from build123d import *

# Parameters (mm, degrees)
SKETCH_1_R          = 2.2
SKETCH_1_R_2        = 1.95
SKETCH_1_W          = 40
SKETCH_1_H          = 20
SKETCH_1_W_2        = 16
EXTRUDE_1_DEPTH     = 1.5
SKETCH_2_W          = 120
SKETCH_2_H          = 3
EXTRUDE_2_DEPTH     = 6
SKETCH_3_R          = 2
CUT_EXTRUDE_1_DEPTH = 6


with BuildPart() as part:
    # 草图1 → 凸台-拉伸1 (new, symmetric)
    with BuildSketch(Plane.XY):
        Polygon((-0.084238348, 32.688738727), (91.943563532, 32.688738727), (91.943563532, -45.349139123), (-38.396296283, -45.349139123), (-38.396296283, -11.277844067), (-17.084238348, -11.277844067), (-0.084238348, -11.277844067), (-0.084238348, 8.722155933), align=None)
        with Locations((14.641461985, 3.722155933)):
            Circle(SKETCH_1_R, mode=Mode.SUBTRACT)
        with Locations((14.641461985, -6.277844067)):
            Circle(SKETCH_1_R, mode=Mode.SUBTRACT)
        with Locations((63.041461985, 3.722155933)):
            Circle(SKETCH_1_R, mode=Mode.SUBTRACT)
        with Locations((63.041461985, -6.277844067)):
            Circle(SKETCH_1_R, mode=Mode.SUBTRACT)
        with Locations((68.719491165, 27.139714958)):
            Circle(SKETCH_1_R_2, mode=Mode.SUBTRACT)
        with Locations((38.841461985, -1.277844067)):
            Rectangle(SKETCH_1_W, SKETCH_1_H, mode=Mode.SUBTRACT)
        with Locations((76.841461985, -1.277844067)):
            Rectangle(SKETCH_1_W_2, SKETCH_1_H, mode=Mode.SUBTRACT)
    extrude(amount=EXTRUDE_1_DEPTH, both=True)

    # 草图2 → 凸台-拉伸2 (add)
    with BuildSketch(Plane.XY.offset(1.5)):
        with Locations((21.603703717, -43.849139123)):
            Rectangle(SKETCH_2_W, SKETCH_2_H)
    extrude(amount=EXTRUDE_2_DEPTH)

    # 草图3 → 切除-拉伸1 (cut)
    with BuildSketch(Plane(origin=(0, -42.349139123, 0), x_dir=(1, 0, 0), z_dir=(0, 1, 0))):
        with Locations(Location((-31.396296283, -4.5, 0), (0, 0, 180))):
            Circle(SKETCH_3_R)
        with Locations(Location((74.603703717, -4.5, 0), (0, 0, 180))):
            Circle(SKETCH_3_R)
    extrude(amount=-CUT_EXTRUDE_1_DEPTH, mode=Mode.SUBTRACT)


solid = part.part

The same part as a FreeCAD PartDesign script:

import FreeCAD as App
import Part
import Sketcher

V = App.Vector
Q = App.Units.Quantity

doc = App.newDocument("Part")
params = doc.addObject("Spreadsheet::Sheet", "Params")
for row, (alias, value) in enumerate([
    ("sketch1_diameter", "4.4 mm"),
    ("sketch1_diameter2", "3.9 mm"),
    ("sketch1_width", "16 mm"),
    ("sketch1_width2", "40 mm"),
    ("sketch1_height", "20 mm"),
    ("pad1_length", "3 mm"),
    ("sketch2_width", "120 mm"),
    ("sketch2_height", "3 mm"),
    ("pad2_length", "6 mm"),
    ("sketch3_diameter", "4 mm"),
    ("pocket1_length", "6 mm"),
], start=1):
    params.set(f"A{row}", alias)
    params.set(f"B{row}", "=" + value)
    params.setAlias(f"B{row}", alias)

body = doc.addObject("PartDesign::Body", "Body")

# Sketch on XY plane
sketch1 = doc.addObject("Sketcher::SketchObject", "Sketch")
body.addObject(sketch1)
sketch1.AttachmentSupport = (doc.XY_Plane, [""])
sketch1.MapMode = "FlatFace"
sketch1.addGeometry([
    Part.LineSegment(V(91.9, 32.7, 0), V(-0.1, 32.7, 0)),  # 0
    Part.LineSegment(V(-0.1, 32.7, 0), V(-0.1, -11.3, 0)),  # 1
    Part.LineSegment(V(-0.1, -11.3, 0), V(-38.4, -11.3, 0)),  # 2
    Part.LineSegment(V(-38.4, -11.3, 0), V(-38.4, -45.3, 0)),  # 3
    Part.LineSegment(V(-38.4, -45.3, 0), V(91.9, -45.3, 0)),  # 4
    Part.LineSegment(V(91.9, -45.3, 0), V(91.9, 32.7, 0)),  # 5
    Part.LineSegment(V(68.8, -11.3, 0), V(68.8, 8.7, 0)),  # 6
    Part.LineSegment(V(68.8, 8.7, 0), V(84.8, 8.7, 0)),  # 7
    Part.LineSegment(V(84.8, 8.7, 0), V(84.8, -11.3, 0)),  # 8
    Part.LineSegment(V(84.8, -11.3, 0), V(68.8, -11.3, 0)),  # 9
    Part.Circle(V(63, -6.3, 0), V(0, 0, 1), 2.2),  # 10
    Part.Circle(V(63, 3.7, 0), V(0, 0, 1), 2.2),  # 11
    Part.LineSegment(V(18.8, -11.3, 0), V(18.8, 8.7, 0)),  # 12
    Part.LineSegment(V(18.8, 8.7, 0), V(58.8, 8.7, 0)),  # 13
    Part.LineSegment(V(58.8, 8.7, 0), V(58.8, -11.3, 0)),  # 14
    Part.LineSegment(V(58.8, -11.3, 0), V(18.8, -11.3, 0)),  # 15
    Part.Circle(V(14.6, -6.3, 0), V(0, 0, 1), 2.2),  # 16
    Part.Circle(V(14.6, 3.7, 0), V(0, 0, 1), 2.2),  # 17
    Part.Circle(V(68.7, 27.1, 0), V(0, 0, 1), 1.9),  # 18
], False)
sketch1.addConstraint([
    Sketcher.Constraint("Coincident", 0, 2, 1, 1),
    Sketcher.Constraint("Coincident", 1, 2, 2, 1),
    Sketcher.Constraint("Coincident", 2, 2, 3, 1),
    Sketcher.Constraint("Coincident", 3, 2, 4, 1),
    Sketcher.Constraint("Coincident", 4, 2, 5, 1),
    Sketcher.Constraint("Coincident", 5, 2, 0, 1),
    Sketcher.Constraint("Coincident", 6, 2, 7, 1),
    Sketcher.Constraint("Coincident", 7, 2, 8, 1),
    Sketcher.Constraint("Coincident", 8, 2, 9, 1),
    Sketcher.Constraint("Coincident", 9, 2, 6, 1),
    Sketcher.Constraint("Coincident", 12, 2, 13, 1),
    Sketcher.Constraint("Coincident", 13, 2, 14, 1),
    Sketcher.Constraint("Coincident", 14, 2, 15, 1),
    Sketcher.Constraint("Coincident", 15, 2, 12, 1),
    Sketcher.Constraint("Horizontal", 0),
    Sketcher.Constraint("Vertical", 1),
    Sketcher.Constraint("Horizontal", 2),
    Sketcher.Constraint("Vertical", 3),
    Sketcher.Constraint("Horizontal", 4),
    Sketcher.Constraint("Vertical", 5),
    Sketcher.Constraint("Vertical", 6),
    Sketcher.Constraint("Horizontal", 7),
    Sketcher.Constraint("Vertical", 8),
    Sketcher.Constraint("Horizontal", 9),
    Sketcher.Constraint("Vertical", 12),
    Sketcher.Constraint("Horizontal", 13),
    Sketcher.Constraint("Vertical", 14),
    Sketcher.Constraint("Horizontal", 15),
    Sketcher.Constraint("Equal", 10, 11),
    Sketcher.Constraint("Equal", 11, 16),
    Sketcher.Constraint("Equal", 16, 17),
    Sketcher.Constraint("Horizontal", 10, 3, 16, 3),
    Sketcher.Constraint("Horizontal", 11, 3, 17, 3),
    Sketcher.Constraint("Horizontal", 2, 2, 8, 2),
    Sketcher.Constraint("Horizontal", 7, 2, 12, 2),
    Sketcher.Constraint("Horizontal", 9, 2, 14, 2),
    Sketcher.Constraint("Vertical", 10, 3, 11, 3),
    Sketcher.Constraint("Vertical", 16, 3, 17, 3),
    Sketcher.Constraint("Diameter", 10, Q("4.4 mm")),
    Sketcher.Constraint("Diameter", 18, Q("3.9 mm")),
    Sketcher.Constraint("DistanceX", 7, 1, 7, 2, Q("16 mm")),
    Sketcher.Constraint("DistanceX", 13, 1, 13, 2, Q("40 mm")),
    Sketcher.Constraint("DistanceY", 6, 1, 6, 2, Q("20 mm")),
    Sketcher.Constraint("DistanceY", 10, 3, 11, 3, Q("10 mm")),
    Sketcher.Constraint("DistanceY", 1, 2, 16, 3, Q("5 mm")),
    Sketcher.Constraint("DistanceX", 13, 2, 6, 2, Q("10 mm")),
    Sketcher.Constraint("DistanceX", 16, 3, 10, 3, Q("48.4 mm")),
    Sketcher.Constraint("DistanceX", 11, 3, 6, 2, Q("5.8 mm")),
    Sketcher.Constraint("DistanceX", 0, 2, 0, 1, Q("92.027802 mm")),
    Sketcher.Constraint("DistanceX", 4, 1, 4, 2, Q("130.33986 mm")),
    Sketcher.Constraint("DistanceX", 0, 2, 17, 3, Q("14.7257 mm")),
    Sketcher.Constraint("DistanceY", 1, 2, 1, 1, Q("43.966583 mm")),
    Sketcher.Constraint("DistanceY", 3, 2, 3, 1, Q("34.071295 mm")),
    Sketcher.Constraint("DistanceX", -1, 1, 10, 3, Q("63.041462 mm")),
    Sketcher.Constraint("DistanceX", -1, 1, 18, 3, Q("68.719491 mm")),
    Sketcher.Constraint("DistanceY", -1, 1, 0, 2, Q("32.688739 mm")),
    Sketcher.Constraint("DistanceY", 11, 3, 18, 3, Q("23.417559 mm")),
])
sketch1.setExpression("Constraints[38]", "Params.sketch1_diameter")
sketch1.setExpression("Constraints[39]", "Params.sketch1_diameter2")
sketch1.setExpression("Constraints[40]", "Params.sketch1_width")
sketch1.setExpression("Constraints[41]", "Params.sketch1_width2")
sketch1.setExpression("Constraints[42]", "Params.sketch1_height")
pad1 = doc.addObject("PartDesign::Pad", "Pad")
body.addObject(pad1)
pad1.Profile = sketch1
pad1.setExpression("Length", "Params.pad1_length")
pad1.Midplane = True

# Sketch on XY plane
sketch2 = doc.addObject("Sketcher::SketchObject", "Sketch001")
body.addObject(sketch2)
sketch2.AttachmentSupport = (doc.XY_Plane, [""])
sketch2.MapMode = "FlatFace"
sketch2.AttachmentOffset = App.Placement(V(0, 0, 1.5), App.Rotation())
sketch2.addGeometry([
    Part.LineSegment(V(-38.4, -42.3, 0), V(-38.4, -45.3, 0)),
    Part.LineSegment(V(-38.4, -45.3, 0), V(81.6, -45.3, 0)),
    Part.LineSegment(V(81.6, -45.3, 0), V(81.6, -42.3, 0)),
    Part.LineSegment(V(81.6, -42.3, 0), V(-38.4, -42.3, 0)),
], False)
sketch2.addConstraint([
    Sketcher.Constraint("Coincident", 0, 2, 1, 1),
    Sketcher.Constraint("Coincident", 1, 2, 2, 1),
    Sketcher.Constraint("Coincident", 2, 2, 3, 1),
    Sketcher.Constraint("Coincident", 3, 2, 0, 1),
    Sketcher.Constraint("Vertical", 0),
    Sketcher.Constraint("Horizontal", 1),
    Sketcher.Constraint("Vertical", 2),
    Sketcher.Constraint("Horizontal", 3),
    Sketcher.Constraint("DistanceX", 1, 1, 1, 2, Q("120 mm")),
    Sketcher.Constraint("DistanceY", 0, 2, 0, 1, Q("3 mm")),
    Sketcher.Constraint("DistanceY", 0, 2, -1, 1, Q("45.349139 mm")),
    Sketcher.Constraint("DistanceX", 0, 2, -1, 1, Q("38.396296 mm")),
])
sketch2.setExpression("Constraints[8]", "Params.sketch2_width")
sketch2.setExpression("Constraints[9]", "Params.sketch2_height")
pad2 = doc.addObject("PartDesign::Pad", "Pad001")
body.addObject(pad2)
pad2.Profile = sketch2
pad2.setExpression("Length", "Params.pad2_length")

# Sketch on XZ plane
sketch3 = doc.addObject("Sketcher::SketchObject", "Sketch002")
body.addObject(sketch3)
sketch3.AttachmentSupport = (doc.XZ_Plane, [""])
sketch3.MapMode = "FlatFace"
sketch3.AttachmentOffset = App.Placement(V(0, 0, 42.349139), App.Rotation())
sketch3.addGeometry([
    Part.Circle(V(-31.4, 4.5, 0), V(0, 0, 1), 2),
    Part.Circle(V(74.6, 4.5, 0), V(0, 0, 1), 2),
], False)
sketch3.addConstraint([
    Sketcher.Constraint("Equal", 0, 1),
    Sketcher.Constraint("Horizontal", 0, 3, 1, 3),
    Sketcher.Constraint("Diameter", 0, Q("4 mm")),
    Sketcher.Constraint("DistanceX", 0, 3, 1, 3, Q("106 mm")),
    Sketcher.Constraint("DistanceY", -1, 1, 0, 3, Q("4.5 mm")),
    Sketcher.Constraint("DistanceX", 0, 3, -1, 1, Q("31.396296 mm")),
])
sketch3.setExpression("Constraints[2]", "Params.sketch3_diameter")
pocket1 = doc.addObject("PartDesign::Pocket", "Pocket")
body.addObject(pocket1)
pocket1.Profile = sketch3
pocket1.setExpression("Length", "Params.pocket1_length")
pocket1.Reversed = True

doc.recompute()
